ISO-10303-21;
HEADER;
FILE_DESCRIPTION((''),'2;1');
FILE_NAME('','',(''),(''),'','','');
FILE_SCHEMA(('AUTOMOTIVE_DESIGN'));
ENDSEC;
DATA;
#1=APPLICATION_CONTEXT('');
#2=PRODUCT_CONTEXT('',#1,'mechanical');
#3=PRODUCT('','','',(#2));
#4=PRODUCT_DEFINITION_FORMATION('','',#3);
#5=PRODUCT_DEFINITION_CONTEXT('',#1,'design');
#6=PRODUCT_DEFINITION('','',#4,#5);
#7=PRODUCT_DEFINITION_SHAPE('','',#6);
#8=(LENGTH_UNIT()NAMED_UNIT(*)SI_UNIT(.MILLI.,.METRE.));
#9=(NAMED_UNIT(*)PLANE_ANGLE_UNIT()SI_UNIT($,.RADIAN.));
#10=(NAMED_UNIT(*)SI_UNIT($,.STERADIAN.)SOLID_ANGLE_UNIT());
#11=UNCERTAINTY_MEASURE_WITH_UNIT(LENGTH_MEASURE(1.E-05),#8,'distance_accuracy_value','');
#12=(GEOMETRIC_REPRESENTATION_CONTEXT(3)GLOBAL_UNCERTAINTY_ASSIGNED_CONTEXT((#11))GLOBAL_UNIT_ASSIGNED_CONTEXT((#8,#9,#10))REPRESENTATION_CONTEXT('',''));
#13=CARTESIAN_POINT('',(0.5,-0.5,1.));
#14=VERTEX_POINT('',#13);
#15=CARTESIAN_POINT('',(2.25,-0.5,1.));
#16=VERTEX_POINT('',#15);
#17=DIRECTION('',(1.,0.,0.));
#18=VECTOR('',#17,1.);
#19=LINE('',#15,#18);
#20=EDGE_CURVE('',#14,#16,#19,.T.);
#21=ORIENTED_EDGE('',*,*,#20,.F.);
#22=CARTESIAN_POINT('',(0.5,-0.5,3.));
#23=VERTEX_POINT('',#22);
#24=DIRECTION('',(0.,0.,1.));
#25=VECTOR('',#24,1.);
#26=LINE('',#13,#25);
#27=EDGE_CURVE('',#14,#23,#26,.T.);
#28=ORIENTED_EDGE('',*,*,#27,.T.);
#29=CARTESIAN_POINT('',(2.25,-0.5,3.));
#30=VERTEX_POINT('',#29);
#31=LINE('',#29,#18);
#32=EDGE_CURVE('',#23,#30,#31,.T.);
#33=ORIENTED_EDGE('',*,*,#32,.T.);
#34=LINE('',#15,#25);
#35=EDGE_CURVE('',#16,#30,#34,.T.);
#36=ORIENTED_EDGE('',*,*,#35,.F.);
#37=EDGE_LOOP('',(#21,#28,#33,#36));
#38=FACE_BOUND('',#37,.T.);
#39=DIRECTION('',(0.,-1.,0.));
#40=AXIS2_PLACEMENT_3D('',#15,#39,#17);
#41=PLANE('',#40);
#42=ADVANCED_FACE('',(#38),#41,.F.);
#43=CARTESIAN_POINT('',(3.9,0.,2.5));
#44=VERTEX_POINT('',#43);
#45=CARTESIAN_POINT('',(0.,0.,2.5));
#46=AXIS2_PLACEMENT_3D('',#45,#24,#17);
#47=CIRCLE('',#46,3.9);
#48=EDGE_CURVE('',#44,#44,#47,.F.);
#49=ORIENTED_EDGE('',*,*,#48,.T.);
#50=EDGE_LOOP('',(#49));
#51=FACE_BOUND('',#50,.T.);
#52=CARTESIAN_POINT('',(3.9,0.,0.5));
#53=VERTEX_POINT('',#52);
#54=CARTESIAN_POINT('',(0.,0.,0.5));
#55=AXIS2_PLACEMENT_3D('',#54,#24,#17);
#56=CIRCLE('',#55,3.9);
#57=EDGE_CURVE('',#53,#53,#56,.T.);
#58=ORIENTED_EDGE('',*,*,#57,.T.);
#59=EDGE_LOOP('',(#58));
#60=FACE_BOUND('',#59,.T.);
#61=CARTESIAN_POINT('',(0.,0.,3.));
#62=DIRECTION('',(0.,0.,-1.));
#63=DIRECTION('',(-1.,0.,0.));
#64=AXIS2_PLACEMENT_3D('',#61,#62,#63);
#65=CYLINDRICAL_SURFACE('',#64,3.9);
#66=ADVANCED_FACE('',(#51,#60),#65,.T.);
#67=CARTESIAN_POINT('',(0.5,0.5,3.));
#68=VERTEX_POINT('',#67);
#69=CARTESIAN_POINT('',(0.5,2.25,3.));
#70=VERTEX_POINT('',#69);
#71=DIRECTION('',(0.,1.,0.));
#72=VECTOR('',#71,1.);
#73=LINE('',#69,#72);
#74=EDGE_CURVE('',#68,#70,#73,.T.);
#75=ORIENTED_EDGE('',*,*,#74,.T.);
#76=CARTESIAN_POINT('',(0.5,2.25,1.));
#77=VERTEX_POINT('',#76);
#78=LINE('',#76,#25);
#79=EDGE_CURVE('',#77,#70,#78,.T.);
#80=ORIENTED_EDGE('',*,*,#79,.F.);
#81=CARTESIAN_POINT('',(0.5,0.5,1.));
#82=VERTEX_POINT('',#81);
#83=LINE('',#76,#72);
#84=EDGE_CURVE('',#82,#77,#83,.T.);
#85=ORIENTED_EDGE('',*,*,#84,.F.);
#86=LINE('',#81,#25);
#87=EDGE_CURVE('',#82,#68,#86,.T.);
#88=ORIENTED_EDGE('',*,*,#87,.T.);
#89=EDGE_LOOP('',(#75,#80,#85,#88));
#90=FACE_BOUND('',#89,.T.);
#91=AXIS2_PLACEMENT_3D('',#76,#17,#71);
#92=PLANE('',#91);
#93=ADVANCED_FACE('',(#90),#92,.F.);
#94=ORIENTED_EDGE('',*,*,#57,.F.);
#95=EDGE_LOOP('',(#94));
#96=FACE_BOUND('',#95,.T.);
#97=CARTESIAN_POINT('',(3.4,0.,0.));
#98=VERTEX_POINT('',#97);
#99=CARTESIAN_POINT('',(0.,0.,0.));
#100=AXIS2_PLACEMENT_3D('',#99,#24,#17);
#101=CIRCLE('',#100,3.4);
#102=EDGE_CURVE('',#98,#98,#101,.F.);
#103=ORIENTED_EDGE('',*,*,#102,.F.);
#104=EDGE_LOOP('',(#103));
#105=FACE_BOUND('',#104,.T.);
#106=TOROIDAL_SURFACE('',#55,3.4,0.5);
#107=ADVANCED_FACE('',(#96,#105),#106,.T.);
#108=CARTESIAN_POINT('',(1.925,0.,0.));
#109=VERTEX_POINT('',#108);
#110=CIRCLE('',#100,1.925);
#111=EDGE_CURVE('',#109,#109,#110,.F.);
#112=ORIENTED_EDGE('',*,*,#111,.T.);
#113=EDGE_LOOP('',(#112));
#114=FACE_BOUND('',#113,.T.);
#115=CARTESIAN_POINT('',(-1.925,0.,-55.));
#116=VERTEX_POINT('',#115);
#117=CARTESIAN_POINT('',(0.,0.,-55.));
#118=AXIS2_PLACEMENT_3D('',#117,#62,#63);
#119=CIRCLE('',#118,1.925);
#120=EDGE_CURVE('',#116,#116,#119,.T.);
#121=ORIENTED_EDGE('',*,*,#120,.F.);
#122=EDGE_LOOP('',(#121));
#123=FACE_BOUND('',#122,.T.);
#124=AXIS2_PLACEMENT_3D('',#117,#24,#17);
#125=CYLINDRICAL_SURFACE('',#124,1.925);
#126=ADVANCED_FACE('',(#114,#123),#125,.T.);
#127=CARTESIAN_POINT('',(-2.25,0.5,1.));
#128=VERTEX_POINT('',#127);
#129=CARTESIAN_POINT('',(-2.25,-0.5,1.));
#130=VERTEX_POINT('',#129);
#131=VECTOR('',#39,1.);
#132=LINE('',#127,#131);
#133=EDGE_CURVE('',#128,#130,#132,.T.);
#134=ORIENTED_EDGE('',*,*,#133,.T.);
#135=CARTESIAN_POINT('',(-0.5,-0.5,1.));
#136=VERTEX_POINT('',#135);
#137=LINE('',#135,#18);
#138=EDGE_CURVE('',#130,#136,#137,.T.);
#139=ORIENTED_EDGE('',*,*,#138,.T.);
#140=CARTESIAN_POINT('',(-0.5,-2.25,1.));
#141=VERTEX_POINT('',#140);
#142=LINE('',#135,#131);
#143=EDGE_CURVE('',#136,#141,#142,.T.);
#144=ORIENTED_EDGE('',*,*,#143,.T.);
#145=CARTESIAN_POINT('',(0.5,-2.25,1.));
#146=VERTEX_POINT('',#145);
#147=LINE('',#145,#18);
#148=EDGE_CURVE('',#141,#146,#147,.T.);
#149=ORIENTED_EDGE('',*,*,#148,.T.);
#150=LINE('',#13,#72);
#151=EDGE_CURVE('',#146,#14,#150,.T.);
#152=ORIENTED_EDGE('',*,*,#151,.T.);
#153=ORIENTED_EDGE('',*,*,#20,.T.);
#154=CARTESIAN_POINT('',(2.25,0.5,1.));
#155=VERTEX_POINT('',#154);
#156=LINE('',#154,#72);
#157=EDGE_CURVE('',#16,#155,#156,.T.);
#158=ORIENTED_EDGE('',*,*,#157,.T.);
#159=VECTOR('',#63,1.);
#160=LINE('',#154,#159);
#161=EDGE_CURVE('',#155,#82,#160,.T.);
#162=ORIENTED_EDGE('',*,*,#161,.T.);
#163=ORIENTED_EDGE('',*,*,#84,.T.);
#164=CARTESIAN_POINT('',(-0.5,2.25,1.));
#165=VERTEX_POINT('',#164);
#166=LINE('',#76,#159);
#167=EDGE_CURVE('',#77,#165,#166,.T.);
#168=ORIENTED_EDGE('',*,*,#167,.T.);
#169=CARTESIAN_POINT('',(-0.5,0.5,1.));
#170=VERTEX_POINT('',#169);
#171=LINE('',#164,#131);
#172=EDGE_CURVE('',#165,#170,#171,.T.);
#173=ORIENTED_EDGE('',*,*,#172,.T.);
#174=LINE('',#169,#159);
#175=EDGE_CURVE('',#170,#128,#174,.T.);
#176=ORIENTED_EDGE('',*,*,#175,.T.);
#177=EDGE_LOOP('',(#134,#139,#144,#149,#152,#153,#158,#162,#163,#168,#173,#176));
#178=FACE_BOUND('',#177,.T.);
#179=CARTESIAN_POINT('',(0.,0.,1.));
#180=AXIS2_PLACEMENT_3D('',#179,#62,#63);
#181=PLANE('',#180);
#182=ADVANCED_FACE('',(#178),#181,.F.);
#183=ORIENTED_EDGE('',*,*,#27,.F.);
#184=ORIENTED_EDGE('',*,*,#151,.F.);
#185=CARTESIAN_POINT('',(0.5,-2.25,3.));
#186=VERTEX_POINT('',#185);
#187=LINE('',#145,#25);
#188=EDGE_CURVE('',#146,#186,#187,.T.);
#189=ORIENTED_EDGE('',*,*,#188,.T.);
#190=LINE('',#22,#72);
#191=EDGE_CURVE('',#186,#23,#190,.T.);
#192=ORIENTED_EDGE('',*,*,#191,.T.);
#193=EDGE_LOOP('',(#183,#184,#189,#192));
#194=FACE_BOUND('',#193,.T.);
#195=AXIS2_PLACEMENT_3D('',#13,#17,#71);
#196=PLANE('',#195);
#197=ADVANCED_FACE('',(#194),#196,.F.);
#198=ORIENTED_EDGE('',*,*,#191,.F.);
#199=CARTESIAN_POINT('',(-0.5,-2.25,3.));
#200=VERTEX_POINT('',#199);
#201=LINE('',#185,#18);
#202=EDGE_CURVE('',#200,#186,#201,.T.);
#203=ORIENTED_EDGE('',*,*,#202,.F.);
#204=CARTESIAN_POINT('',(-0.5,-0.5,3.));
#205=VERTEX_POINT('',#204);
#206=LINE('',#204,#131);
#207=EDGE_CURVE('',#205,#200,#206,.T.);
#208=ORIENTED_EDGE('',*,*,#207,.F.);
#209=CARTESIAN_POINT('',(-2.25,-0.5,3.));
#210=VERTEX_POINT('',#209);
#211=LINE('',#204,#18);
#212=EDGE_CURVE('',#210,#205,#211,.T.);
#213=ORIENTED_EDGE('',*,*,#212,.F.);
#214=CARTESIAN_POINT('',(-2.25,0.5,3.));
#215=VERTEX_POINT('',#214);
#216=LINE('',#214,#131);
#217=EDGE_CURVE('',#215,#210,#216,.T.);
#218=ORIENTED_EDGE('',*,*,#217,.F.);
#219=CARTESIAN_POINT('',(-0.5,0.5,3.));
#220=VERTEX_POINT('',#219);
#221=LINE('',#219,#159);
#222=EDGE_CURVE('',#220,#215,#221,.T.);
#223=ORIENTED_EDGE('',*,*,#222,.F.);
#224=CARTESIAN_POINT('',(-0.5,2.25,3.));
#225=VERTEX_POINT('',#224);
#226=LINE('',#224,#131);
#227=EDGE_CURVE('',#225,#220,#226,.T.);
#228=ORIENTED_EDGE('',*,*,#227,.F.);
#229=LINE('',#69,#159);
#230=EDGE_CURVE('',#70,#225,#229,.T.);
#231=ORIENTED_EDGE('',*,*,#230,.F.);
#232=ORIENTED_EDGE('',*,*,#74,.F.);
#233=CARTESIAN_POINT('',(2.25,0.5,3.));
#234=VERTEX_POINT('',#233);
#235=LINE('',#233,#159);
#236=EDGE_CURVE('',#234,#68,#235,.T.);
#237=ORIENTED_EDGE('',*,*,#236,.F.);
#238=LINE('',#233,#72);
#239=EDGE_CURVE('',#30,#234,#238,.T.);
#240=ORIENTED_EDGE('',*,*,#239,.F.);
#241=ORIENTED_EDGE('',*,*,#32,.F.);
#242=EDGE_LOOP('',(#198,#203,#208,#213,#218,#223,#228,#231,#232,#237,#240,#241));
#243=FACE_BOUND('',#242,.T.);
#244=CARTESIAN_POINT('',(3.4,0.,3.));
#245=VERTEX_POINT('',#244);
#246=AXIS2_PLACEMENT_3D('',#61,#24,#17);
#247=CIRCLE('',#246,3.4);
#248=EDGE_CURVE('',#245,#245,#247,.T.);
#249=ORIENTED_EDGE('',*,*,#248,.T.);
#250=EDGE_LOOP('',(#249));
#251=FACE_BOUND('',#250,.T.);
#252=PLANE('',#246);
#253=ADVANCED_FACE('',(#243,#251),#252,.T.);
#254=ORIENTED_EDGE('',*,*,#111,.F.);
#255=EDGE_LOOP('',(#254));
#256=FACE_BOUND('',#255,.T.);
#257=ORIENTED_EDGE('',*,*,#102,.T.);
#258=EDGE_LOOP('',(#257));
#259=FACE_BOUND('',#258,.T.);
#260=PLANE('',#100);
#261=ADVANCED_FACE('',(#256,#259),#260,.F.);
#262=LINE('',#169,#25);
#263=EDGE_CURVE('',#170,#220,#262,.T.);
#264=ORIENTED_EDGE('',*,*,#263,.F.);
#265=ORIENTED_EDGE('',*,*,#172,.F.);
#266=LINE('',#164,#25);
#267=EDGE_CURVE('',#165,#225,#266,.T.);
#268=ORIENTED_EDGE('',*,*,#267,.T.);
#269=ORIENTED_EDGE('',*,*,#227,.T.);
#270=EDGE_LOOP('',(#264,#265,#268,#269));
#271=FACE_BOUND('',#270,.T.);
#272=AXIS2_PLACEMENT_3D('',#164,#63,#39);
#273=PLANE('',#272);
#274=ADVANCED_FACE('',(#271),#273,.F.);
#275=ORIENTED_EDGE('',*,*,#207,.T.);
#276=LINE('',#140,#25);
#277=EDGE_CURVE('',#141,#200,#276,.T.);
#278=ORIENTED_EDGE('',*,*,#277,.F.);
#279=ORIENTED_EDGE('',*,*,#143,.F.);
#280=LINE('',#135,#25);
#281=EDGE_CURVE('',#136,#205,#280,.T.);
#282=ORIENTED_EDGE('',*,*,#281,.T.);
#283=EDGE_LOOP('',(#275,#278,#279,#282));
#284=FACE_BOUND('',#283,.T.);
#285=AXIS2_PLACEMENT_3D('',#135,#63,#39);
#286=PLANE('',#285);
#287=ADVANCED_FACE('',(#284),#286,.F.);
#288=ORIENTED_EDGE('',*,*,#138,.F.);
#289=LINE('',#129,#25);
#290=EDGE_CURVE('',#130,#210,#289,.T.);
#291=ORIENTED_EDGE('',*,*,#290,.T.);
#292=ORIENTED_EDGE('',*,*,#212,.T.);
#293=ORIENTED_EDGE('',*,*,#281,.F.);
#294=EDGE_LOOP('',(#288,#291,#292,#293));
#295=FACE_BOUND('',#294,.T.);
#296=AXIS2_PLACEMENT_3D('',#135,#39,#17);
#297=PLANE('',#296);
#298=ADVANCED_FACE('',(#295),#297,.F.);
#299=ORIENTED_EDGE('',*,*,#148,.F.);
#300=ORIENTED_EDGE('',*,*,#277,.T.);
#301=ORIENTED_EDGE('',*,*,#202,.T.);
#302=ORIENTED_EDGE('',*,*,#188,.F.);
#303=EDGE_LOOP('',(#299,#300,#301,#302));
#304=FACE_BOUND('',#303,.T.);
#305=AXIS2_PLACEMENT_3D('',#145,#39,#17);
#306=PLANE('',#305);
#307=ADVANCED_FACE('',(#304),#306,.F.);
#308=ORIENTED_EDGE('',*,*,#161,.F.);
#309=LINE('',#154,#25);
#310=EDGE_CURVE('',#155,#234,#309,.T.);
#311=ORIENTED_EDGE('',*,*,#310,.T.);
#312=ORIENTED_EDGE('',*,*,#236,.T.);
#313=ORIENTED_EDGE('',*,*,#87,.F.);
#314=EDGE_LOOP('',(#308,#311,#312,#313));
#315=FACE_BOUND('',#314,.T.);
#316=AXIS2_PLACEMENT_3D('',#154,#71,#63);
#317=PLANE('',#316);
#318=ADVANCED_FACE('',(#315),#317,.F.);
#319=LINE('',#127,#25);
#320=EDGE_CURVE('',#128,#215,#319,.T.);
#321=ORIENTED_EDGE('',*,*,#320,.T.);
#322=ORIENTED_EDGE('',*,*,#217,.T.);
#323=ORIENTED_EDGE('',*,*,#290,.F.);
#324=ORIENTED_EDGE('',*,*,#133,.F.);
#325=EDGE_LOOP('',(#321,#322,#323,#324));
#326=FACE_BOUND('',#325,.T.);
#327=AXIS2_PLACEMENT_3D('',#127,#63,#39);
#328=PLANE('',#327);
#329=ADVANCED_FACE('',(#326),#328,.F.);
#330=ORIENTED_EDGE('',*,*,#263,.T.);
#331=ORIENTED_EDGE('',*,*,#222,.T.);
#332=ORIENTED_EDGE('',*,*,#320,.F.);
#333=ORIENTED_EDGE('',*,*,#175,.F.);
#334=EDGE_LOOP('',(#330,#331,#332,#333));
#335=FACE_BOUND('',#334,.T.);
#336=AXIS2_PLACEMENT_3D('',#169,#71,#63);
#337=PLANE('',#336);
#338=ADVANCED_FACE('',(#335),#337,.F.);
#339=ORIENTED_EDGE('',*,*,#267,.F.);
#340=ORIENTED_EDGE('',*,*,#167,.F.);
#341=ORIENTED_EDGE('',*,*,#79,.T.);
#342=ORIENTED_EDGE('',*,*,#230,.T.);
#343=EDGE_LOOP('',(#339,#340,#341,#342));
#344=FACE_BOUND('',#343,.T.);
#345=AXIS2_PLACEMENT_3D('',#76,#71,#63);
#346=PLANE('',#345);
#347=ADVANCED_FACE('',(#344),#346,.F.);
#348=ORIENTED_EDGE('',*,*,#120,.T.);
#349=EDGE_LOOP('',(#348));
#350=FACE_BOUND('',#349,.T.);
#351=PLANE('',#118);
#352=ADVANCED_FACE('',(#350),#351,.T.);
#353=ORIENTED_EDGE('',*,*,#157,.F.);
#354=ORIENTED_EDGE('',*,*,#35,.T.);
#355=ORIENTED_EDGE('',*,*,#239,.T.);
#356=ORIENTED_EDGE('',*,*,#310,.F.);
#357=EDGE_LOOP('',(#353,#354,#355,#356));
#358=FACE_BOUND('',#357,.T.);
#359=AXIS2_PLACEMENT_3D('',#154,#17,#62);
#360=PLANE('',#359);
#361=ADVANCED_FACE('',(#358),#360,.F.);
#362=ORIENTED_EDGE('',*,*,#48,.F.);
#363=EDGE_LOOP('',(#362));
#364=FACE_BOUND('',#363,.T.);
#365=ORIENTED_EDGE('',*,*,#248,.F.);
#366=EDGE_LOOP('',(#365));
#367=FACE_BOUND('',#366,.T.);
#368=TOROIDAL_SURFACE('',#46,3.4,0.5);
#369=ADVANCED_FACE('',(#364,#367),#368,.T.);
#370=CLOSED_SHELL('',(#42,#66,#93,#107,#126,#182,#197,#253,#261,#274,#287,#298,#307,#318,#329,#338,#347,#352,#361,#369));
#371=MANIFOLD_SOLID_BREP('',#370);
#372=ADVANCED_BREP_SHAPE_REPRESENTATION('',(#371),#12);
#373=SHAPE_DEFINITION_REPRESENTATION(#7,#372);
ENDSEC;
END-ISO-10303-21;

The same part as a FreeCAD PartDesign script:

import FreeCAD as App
import Part
import Sketcher
from FreeCAD import Vector


def edges_at(feature, points):
    """Names of the edges that pass closest to the given points."""
    edges = feature.Shape.Edges
    near = lambda p: min(range(len(edges)), key=lambda i: edges[i].distToShape(Part.Vertex(*p))[0])
    return sorted({f"Edge{near(p) + 1}" for p in points})

doc = App.newDocument("Part")
body = doc.addObject("PartDesign::Body", "Body")

# Sketch on XY plane
sketch1 = doc.addObject("Sketcher::SketchObject", "Sketch")
body.addObject(sketch1)
sketch1.AttachmentSupport = (doc.XY_Plane, [""])
sketch1.MapMode = "FlatFace"
sketch1.addGeometry(Part.Circle(Vector(0, 0, 0), Vector(0, 0, 1), 3.9), False)
sketch1.addConstraint(Sketcher.Constraint("Coincident", 0, 3, -1, 1))
sketch1.addConstraint(Sketcher.Constraint("Diameter", 0, 7.8))
pad1 = doc.addObject("PartDesign::Pad", "Pad")
body.addObject(pad1)
pad1.Profile = sketch1
pad1.Length = 3

# Sketch on XY plane
sketch2 = doc.addObject("Sketcher::SketchObject", "Sketch001")
body.addObject(sketch2)
sketch2.AttachmentSupport = (doc.XY_Plane, [""])
sketch2.MapMode = "FlatFace"
sketch2.AttachmentOffset = App.Placement(Vector(0, 0, 3), App.Rotation())
sketch2.addGeometry(Part.LineSegment(Vector(-2.25, -0.5, 0), Vector(-0.5, -0.5, 0)), False)
sketch2.addGeometry(Part.LineSegment(Vector(-0.5, -0.5, 0), Vector(-0.5, -2.25, 0)), False)
sketch2.addGeometry(Part.LineSegment(Vector(-0.5, -2.25, 0), Vector(0.5, -2.25, 0)), False)
sketch2.addGeometry(Part.LineSegment(Vector(0.5, -2.25, 0), Vector(0.5, -0.5, 0)), False)
sketch2.addGeometry(Part.LineSegment(Vector(0.5, -0.5, 0), Vector(2.25, -0.5, 0)), False)
sketch2.addGeometry(Part.LineSegment(Vector(2.25, -0.5, 0), Vector(2.25, 0.5, 0)), False)
sketch2.addGeometry(Part.LineSegment(Vector(2.25, 0.5, 0), Vector(0.5, 0.5, 0)), False)
sketch2.addGeometry(Part.LineSegment(Vector(0.5, 0.5, 0), Vector(0.5, 2.25, 0)), False)
sketch2.addGeometry(Part.LineSegment(Vector(0.5, 2.25, 0), Vector(-0.5, 2.25, 0)), False)
sketch2.addGeometry(Part.LineSegment(Vector(-0.5, 2.25, 0), Vector(-0.5, 0.5, 0)), False)
sketch2.addGeometry(Part.LineSegment(Vector(-0.5, 0.5, 0), Vector(-2.25, 0.5, 0)), False)
sketch2.addGeometry(Part.LineSegment(Vector(-2.25, 0.5, 0), Vector(-2.25, -0.5, 0)), False)
sketch2.addConstraint(Sketcher.Constraint("Coincident", 0, 2, 1, 1))
sketch2.addConstraint(Sketcher.Constraint("Coincident", 1, 2, 2, 1))
sketch2.addConstraint(Sketcher.Constraint("Coincident", 2, 2, 3, 1))
sketch2.addConstraint(Sketcher.Constraint("Coincident", 3, 2, 4, 1))
sketch2.addConstraint(Sketcher.Constraint("Coincident", 4, 2, 5, 1))
sketch2.addConstraint(Sketcher.Constraint("Coincident", 5, 2, 6, 1))
sketch2.addConstraint(Sketcher.Constraint("Coincident", 6, 2, 7, 1))
sketch2.addConstraint(Sketcher.Constraint("Coincident", 7, 2, 8, 1))
sketch2.addConstraint(Sketcher.Constraint("Coincident", 8, 2, 9, 1))
sketch2.addConstraint(Sketcher.Constraint("Coincident", 9, 2, 10, 1))
sketch2.addConstraint(Sketcher.Constraint("Coincident", 10, 2, 11, 1))
sketch2.addConstraint(Sketcher.Constraint("Coincident", 11, 2, 0, 1))
sketch2.addConstraint(Sketcher.Constraint("Horizontal", 0))
sketch2.addConstraint(Sketcher.Constraint("Vertical", 1))
sketch2.addConstraint(Sketcher.Constraint("Horizontal", 2))
sketch2.addConstraint(Sketcher.Constraint("Vertical", 3))
sketch2.addConstraint(Sketcher.Constraint("Horizontal", 4))
sketch2.addConstraint(Sketcher.Constraint("Vertical", 5))
sketch2.addConstraint(Sketcher.Constraint("Horizontal", 6))
sketch2.addConstraint(Sketcher.Constraint("Vertical", 7))
sketch2.addConstraint(Sketcher.Constraint("Horizontal", 8))
sketch2.addConstraint(Sketcher.Constraint("Vertical", 9))
sketch2.addConstraint(Sketcher.Constraint("Horizontal", 10))
sketch2.addConstraint(Sketcher.Constraint("Vertical", 11))
sketch2.addConstraint(Sketcher.Constraint("Symmetric", 0, 2, 6, 2, -1, 1))
sketch2.addConstraint(Sketcher.Constraint("Symmetric", 2, 2, 8, 2, -1, 1))
sketch2.addConstraint(Sketcher.Constraint("Symmetric", 4, 2, 10, 2, -1, 1))
sketch2.addConstraint(Sketcher.Constraint("Symmetric", 0, 2, 3, 2, -2))
sketch2.addConstraint(Sketcher.Constraint("Equal", 10, 1))
sketch2.addConstraint(Sketcher.Constraint("Equal", 8, 5))
sketch2.addConstraint(Sketcher.Constraint("DistanceX", 2, 1, 2, 2, 1.0))
sketch2.addConstraint(Sketcher.Constraint("DistanceX", 0, 1, 0, 2, 1.75))
pocket1 = doc.addObject("PartDesign::Pocket", "Pocket")
body.addObject(pocket1)
pocket1.Profile = sketch2
pocket1.Length = 2
doc.recompute()

fillet = doc.addObject("PartDesign::Fillet", "Fillet")
body.addObject(fillet)
fillet.Base = (pocket1, edges_at(pocket1, [(-3.9, 0, 0), (-3.9, 0, 3)]))
fillet.Radius = 0.5

# Sketch on XY plane
sketch3 = doc.addObject("Sketcher::SketchObject", "Sketch002")
body.addObject(sketch3)
sketch3.AttachmentSupport = (doc.XY_Plane, [""])
sketch3.MapMode = "FlatFace"
sketch3.addGeometry(Part.Circle(Vector(0, 0, 0), Vector(0, 0, 1), 1.925), False)
sketch3.addConstraint(Sketcher.Constraint("Coincident", 0, 3, -1, 1))
sketch3.addConstraint(Sketcher.Constraint("Diameter", 0, 3.85))
pad2 = doc.addObject("PartDesign::Pad", "Pad001")
body.addObject(pad2)
pad2.Profile = sketch3
pad2.Length = 55
pad2.Reversed = True

doc.recompute()
